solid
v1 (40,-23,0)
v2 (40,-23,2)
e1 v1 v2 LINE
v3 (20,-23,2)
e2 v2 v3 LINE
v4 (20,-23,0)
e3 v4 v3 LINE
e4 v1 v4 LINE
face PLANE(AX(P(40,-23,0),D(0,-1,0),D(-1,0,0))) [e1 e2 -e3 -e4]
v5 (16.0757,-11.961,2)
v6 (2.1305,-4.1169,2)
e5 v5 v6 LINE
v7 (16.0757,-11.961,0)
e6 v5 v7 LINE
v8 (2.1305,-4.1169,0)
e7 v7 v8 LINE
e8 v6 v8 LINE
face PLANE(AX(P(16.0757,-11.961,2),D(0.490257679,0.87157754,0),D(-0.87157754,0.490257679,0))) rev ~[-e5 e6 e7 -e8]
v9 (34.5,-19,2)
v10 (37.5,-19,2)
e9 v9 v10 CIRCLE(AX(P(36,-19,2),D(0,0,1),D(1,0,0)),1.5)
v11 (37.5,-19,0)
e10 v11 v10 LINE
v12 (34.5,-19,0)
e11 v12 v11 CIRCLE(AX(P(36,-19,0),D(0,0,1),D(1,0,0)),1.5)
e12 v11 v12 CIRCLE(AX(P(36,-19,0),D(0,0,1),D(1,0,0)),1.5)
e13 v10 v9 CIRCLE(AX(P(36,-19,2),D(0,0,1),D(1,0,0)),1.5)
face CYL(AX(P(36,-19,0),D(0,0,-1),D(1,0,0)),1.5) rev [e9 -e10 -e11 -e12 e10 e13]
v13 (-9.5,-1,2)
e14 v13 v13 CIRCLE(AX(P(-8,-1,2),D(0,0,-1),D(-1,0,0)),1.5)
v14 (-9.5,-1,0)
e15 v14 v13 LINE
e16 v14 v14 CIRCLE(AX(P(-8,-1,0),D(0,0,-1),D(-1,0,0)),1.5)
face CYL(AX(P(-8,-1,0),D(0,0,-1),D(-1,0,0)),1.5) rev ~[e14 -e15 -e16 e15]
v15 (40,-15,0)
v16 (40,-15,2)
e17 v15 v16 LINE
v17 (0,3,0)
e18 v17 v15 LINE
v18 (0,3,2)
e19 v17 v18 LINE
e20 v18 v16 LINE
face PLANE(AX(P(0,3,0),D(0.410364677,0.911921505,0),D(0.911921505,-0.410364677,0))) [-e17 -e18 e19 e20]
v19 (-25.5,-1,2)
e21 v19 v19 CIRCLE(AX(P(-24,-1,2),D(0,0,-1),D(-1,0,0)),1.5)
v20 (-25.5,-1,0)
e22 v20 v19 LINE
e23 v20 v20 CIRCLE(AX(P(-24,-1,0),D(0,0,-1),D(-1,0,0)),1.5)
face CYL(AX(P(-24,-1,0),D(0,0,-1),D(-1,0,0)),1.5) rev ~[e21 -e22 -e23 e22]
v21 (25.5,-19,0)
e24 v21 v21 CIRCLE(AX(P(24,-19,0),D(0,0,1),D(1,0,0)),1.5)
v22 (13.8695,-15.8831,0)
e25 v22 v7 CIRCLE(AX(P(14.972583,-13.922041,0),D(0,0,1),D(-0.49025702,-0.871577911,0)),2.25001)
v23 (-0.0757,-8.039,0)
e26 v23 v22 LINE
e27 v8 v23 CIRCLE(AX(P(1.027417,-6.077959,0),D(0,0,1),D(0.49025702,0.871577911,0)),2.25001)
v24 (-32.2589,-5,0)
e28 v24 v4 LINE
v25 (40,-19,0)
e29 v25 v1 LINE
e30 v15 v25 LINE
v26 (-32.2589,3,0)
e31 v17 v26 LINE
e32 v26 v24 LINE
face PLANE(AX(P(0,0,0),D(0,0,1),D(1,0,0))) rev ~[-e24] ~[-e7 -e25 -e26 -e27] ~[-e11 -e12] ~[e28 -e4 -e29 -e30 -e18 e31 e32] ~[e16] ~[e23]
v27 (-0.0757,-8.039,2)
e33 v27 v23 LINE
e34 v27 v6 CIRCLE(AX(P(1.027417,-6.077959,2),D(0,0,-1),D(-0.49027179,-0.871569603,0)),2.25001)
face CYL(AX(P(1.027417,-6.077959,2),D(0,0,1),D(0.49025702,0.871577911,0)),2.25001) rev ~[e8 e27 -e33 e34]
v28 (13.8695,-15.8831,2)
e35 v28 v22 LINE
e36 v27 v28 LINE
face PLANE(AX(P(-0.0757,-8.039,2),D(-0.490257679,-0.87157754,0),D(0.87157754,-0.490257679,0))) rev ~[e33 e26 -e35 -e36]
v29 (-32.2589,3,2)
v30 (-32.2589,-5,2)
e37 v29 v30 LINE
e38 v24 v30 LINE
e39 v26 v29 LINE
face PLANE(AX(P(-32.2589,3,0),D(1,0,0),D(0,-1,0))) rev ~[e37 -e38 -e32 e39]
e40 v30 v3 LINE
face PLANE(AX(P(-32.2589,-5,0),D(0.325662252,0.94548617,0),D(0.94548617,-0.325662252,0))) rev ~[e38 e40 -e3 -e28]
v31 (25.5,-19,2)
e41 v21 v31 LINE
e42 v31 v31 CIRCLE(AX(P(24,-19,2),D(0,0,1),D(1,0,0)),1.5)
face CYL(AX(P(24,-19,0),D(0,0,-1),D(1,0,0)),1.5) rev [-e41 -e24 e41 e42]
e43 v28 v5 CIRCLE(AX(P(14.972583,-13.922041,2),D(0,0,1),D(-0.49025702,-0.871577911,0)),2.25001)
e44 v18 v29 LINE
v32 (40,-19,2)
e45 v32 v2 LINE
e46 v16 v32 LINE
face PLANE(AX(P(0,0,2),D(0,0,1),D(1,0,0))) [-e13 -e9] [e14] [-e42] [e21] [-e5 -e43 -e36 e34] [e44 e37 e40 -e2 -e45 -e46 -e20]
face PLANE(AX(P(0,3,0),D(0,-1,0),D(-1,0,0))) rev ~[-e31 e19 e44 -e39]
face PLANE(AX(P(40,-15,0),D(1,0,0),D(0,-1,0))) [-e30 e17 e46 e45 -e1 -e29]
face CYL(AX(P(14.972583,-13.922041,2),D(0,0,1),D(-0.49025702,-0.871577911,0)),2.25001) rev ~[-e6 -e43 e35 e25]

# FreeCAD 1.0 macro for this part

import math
import FreeCAD as App
import Part
import Sketcher


def add_polygon(sketch, points):
    """Adds a closed chain of lines whose ends are joined by coincident constraints."""
    first, n = sketch.GeometryCount, len(points)
    for a, b in zip(points, points[1:] + points[:1]):
        sketch.addGeometry(Part.LineSegment(App.Vector(*a, 0), App.Vector(*b, 0)), False)
    for i in range(n):
        sketch.addConstraint(Sketcher.Constraint("Coincident", first + i, 2, first + (i + 1) % n, 1))

doc = App.newDocument("Part")
params = doc.addObject("Spreadsheet::Sheet", "Params")
for row, (alias, value) in enumerate([
    ("sketch1_diameter", "3 mm"),
    ("sketch1_width", "20 mm"),
    ("sketch1_height", "8 mm"),
    ("sketch1_diameter2", "4 mm"),
    ("pad1_length", "2 mm"),
    ("sketch2_diameter", "3 mm"),
    ("sketch2_diameter2", "4 mm"),
    ("pad2_length", "2 mm"),
    ("sketch3_radius", "2.25 mm"),
    ("sketch3_length", "16 mm"),
    ("pocket1_length", "10 mm"),
], start=1):
    params.set(f"A{row}", alias)
    params.set(f"B{row}", "=" + value)
    params.setAlias(f"B{row}", alias)

body = doc.addObject("PartDesign::Body", "Body")

sketch1 = doc.addObject("Sketcher::SketchObject", "Sketch")
body.addObject(sketch1)
sketch1.AttachmentSupport = (doc.XY_Plane, [""])
sketch1.MapMode = "FlatFace"
add_polygon(sketch1, [(0, 3), (-32.3, 3), (-32.3, -5), (20, -23), (40, -23), (40, -19), (40, -15)])
sketch1.addGeometry(Part.Circle(App.Vector(-24, -1, 0), App.Vector(0, 0, 1), 2), False)
sketch1.addGeometry(Part.Circle(App.Vector(-8, -1, 0), App.Vector(0, 0, 1), 2), False)
sketch1.addGeometry(Part.Circle(App.Vector(24, -19, 0), App.Vector(0, 0, 1), 1.5), False)
sketch1.addGeometry(Part.ArcOfCircle(Part.Circle(App.Vector(36, -19, 0), App.Vector(0, 0, 1), 1.5), math.radians(0), math.radians(180)), False)
sketch1.addGeometry(Part.ArcOfCircle(Part.Circle(App.Vector(36, -19, 0), App.Vector(0, 0, 1), 1.5), math.radians(180), math.radians(360)), False)
sketch1.addConstraint(Sketcher.Constraint("Tangent", 10, 1, 11, 2))
sketch1.addConstraint(Sketcher.Constraint("Coincident", 11, 1, 10, 2))
sketch1.addConstraint(Sketcher.Constraint("Horizontal", 0))
sketch1.addConstraint(Sketcher.Constraint("Vertical", 1))
sketch1.addConstraint(Sketcher.Constraint("Horizontal", 3))
sketch1.addConstraint(Sketcher.Constraint("Vertical", 4))
sketch1.addConstraint(Sketcher.Constraint("Vertical", 5))
sketch1.addConstraint(Sketcher.Constraint("Equal", 7, 8))
sketch1.addConstraint(Sketcher.Constraint("Equal", 9, 10))
sketch1.addConstraint(Sketcher.Constraint("PointOnObject", 6, 2, -2))
sketch1.addConstraint(Sketcher.Constraint("Horizontal", 7, 3, 8, 3))
sketch1.addConstraint(Sketcher.Constraint("Horizontal", 9, 3, 10, 3))
sketch1.addConstraint(Sketcher.Constraint("Horizontal", 11, 3, 4, 2))
sketch1.addConstraint(Sketcher.Constraint("Horizontal", 4, 2, 10, 1))
sketch1.addConstraint(Sketcher.Constraint("Horizontal", 10, 1, 11, 1))
sketch1.addConstraint(Sketcher.Constraint("Equal", 4, 5))
sketch1.addConstraint(Sketcher.Constraint("Diameter", 9, 3.0))
sketch1.addConstraint(Sketcher.Constraint("DistanceX", 3, 1, 3, 2, 20.0))
sketch1.addConstraint(Sketcher.Constraint("DistanceY", 1, 2, 1, 1, 8.0))
sketch1.addConstraint(Sketcher.Constraint("Diameter", 7, 4.0))
sketch1.addConstraint(Sketcher.Constraint("DistanceX", 8, 3, -1, 1, 8.0))
sketch1.addConstraint(Sketcher.Constraint("DistanceY", -1, 1, 0, 2, 3.0))
sketch1.addConstraint(Sketcher.Constraint("DistanceX", -1, 1, 2, 2, 20.0))
sketch1.addConstraint(Sketcher.Constraint("DistanceX", 8, 3, 9, 3, 32.0))
sketch1.addConstraint(Sketcher.Constraint("DistanceY", 3, 2, 5, 2, 8.0))
sketch1.addConstraint(Sketcher.Constraint("DistanceX", 7, 3, -1, 1, 24.0))
sketch1.addConstraint(Sketcher.Constraint("DistanceY", 7, 3, -1, 1, 1.0))
sketch1.addConstraint(Sketcher.Constraint("DistanceY", 9, 3, -1, 1, 19.0))
sketch1.addConstraint(Sketcher.Constraint("DistanceX", -1, 1, 10, 3, 36.0))
sketch1.addConstraint(Sketcher.Constraint("DistanceX", 0, 2, 0, 1, 32.259))
sketch1.setExpression("Constraints[23]", "Params.sketch1_diameter")
sketch1.setExpression("Constraints[24]", "Params.sketch1_width")
sketch1.setExpression("Constraints[25]", "Params.sketch1_height")
sketch1.setExpression("Constraints[26]", "Params.sketch1_diameter2")
pad1 = doc.addObject("PartDesign::Pad", "Pad")
body.addObject(pad1)
pad1.Profile = sketch1
pad1.setExpression("Length", "Params.pad1_length")

sketch2 = doc.addObject("Sketcher::SketchObject", "Sketch001")
body.addObject(sketch2)
sketch2.AttachmentSupport = (doc.XY_Plane, [""])
sketch2.MapMode = "FlatFace"
sketch2.addGeometry(Part.Circle(App.Vector(-24, -1, 0), App.Vector(0, 0, 1), 2), False)
sketch2.addGeometry(Part.Circle(App.Vector(-24, -1, 0), App.Vector(0, 0, 1), 1.5), False)
sketch2.addGeometry(Part.Circle(App.Vector(-8, -1, 0), App.Vector(0, 0, 1), 2), False)
sketch2.addGeometry(Part.Circle(App.Vector(-8, -1, 0), App.Vector(0, 0, 1), 1.5), False)
sketch2.addConstraint(Sketcher.Constraint("Coincident", 1, 3, 0, 3))
sketch2.addConstraint(Sketcher.Constraint("Coincident", 3, 3, 2, 3))
sketch2.addConstraint(Sketcher.Constraint("Equal", 0, 2))
sketch2.addConstraint(Sketcher.Constraint("Equal", 1, 3))
sketch2.addConstraint(Sketcher.Constraint("Horizontal", 1, 3, 2, 3))
sketch2.addConstraint(Sketcher.Constraint("Diameter", 1, 3.0))
sketch2.addConstraint(Sketcher.Constraint("Diameter", 0, 4.0))
sketch2.addConstraint(Sketcher.Constraint("DistanceX", 0, 3, -1, 1, 24.0))
sketch2.addConstraint(Sketcher.Constraint("DistanceY", 0, 3, -1, 1, 1.0))
sketch2.addConstraint(Sketcher.Constraint("DistanceX", 2, 3, -1, 1, 8.0))
sketch2.setExpression("Constraints[5]", "Params.sketch2_diameter")
sketch2.setExpression("Constraints[6]", "Params.sketch2_diameter2")
pad2 = doc.addObject("PartDesign::Pad", "Pad001")
body.addObject(pad2)
pad2.Profile = sketch2
pad2.setExpression("Length", "Params.pad2_length")

sketch3 = doc.addObject("Sketcher::SketchObject", "Sketch002")
body.addObject(sketch3)
sketch3.AttachmentSupport = (doc.XY_Plane, [""])
sketch3.MapMode = "FlatFace"
sketch3.AttachmentOffset = App.Placement(App.Vector(0, 0, 2), App.Rotation())
sketch3.addGeometry(Part.ArcOfCircle(Part.Circle(App.Vector(1, -6.1, 0), App.Vector(0, 0, 1), 2.2), math.radians(61), math.radians(241)), False)
sketch3.addGeometry(Part.LineSegment(App.Vector(-0.1, -8, 0), App.Vector(13.9, -15.9, 0)), False)
sketch3.addGeometry(Part.ArcOfCircle(Part.Circle(App.Vector(15, -13.9, 0), App.Vector(0, 0, 1), 2.2), math.radians(-119), math.radians(61)), False)
sketch3.addGeometry(Part.LineSegment(App.Vector(16.1, -12, 0), App.Vector(2.1, -4.1, 0)), False)
sketch3.addConstraint(Sketcher.Constraint("Tangent", 0, 2, 1, 1))
sketch3.addConstraint(Sketcher.Constraint("Tangent", 1, 2, 2, 1))
sketch3.addConstraint(Sketcher.Constraint("Tangent", 2, 2, 3, 1))
sketch3.addConstraint(Sketcher.Constraint("Tangent", 3, 2, 0, 1))
sketch3.addConstraint(Sketcher.Constraint("Equal", 0, 2))
sketch3.addConstraint(Sketcher.Constraint("Radius", 0, 2.25))
sketch3.addConstraint(Sketcher.Constraint("Distance", 1, 16.0))
sketch3.addConstraint(Sketcher.Constraint("DistanceY", 0, 3, -1, 1, 6.078))
sketch3.addConstraint(Sketcher.Constraint("DistanceY", 2, 3, -1, 1, 13.922))
sketch3.addConstraint(Sketcher.Constraint("DistanceX", -1, 1, 0, 3, 1.0274))
sketch3.setExpression("Constraints[5]", "Params.sketch3_radius")
sketch3.setExpression("Constraints[6]", "Params.sketch3_length")
pocket1 = doc.addObject("PartDesign::Pocket", "Pocket")
body.addObject(pocket1)
pocket1.Profile = sketch3
pocket1.setExpression("Length", "Params.pocket1_length")

doc.recompute()
